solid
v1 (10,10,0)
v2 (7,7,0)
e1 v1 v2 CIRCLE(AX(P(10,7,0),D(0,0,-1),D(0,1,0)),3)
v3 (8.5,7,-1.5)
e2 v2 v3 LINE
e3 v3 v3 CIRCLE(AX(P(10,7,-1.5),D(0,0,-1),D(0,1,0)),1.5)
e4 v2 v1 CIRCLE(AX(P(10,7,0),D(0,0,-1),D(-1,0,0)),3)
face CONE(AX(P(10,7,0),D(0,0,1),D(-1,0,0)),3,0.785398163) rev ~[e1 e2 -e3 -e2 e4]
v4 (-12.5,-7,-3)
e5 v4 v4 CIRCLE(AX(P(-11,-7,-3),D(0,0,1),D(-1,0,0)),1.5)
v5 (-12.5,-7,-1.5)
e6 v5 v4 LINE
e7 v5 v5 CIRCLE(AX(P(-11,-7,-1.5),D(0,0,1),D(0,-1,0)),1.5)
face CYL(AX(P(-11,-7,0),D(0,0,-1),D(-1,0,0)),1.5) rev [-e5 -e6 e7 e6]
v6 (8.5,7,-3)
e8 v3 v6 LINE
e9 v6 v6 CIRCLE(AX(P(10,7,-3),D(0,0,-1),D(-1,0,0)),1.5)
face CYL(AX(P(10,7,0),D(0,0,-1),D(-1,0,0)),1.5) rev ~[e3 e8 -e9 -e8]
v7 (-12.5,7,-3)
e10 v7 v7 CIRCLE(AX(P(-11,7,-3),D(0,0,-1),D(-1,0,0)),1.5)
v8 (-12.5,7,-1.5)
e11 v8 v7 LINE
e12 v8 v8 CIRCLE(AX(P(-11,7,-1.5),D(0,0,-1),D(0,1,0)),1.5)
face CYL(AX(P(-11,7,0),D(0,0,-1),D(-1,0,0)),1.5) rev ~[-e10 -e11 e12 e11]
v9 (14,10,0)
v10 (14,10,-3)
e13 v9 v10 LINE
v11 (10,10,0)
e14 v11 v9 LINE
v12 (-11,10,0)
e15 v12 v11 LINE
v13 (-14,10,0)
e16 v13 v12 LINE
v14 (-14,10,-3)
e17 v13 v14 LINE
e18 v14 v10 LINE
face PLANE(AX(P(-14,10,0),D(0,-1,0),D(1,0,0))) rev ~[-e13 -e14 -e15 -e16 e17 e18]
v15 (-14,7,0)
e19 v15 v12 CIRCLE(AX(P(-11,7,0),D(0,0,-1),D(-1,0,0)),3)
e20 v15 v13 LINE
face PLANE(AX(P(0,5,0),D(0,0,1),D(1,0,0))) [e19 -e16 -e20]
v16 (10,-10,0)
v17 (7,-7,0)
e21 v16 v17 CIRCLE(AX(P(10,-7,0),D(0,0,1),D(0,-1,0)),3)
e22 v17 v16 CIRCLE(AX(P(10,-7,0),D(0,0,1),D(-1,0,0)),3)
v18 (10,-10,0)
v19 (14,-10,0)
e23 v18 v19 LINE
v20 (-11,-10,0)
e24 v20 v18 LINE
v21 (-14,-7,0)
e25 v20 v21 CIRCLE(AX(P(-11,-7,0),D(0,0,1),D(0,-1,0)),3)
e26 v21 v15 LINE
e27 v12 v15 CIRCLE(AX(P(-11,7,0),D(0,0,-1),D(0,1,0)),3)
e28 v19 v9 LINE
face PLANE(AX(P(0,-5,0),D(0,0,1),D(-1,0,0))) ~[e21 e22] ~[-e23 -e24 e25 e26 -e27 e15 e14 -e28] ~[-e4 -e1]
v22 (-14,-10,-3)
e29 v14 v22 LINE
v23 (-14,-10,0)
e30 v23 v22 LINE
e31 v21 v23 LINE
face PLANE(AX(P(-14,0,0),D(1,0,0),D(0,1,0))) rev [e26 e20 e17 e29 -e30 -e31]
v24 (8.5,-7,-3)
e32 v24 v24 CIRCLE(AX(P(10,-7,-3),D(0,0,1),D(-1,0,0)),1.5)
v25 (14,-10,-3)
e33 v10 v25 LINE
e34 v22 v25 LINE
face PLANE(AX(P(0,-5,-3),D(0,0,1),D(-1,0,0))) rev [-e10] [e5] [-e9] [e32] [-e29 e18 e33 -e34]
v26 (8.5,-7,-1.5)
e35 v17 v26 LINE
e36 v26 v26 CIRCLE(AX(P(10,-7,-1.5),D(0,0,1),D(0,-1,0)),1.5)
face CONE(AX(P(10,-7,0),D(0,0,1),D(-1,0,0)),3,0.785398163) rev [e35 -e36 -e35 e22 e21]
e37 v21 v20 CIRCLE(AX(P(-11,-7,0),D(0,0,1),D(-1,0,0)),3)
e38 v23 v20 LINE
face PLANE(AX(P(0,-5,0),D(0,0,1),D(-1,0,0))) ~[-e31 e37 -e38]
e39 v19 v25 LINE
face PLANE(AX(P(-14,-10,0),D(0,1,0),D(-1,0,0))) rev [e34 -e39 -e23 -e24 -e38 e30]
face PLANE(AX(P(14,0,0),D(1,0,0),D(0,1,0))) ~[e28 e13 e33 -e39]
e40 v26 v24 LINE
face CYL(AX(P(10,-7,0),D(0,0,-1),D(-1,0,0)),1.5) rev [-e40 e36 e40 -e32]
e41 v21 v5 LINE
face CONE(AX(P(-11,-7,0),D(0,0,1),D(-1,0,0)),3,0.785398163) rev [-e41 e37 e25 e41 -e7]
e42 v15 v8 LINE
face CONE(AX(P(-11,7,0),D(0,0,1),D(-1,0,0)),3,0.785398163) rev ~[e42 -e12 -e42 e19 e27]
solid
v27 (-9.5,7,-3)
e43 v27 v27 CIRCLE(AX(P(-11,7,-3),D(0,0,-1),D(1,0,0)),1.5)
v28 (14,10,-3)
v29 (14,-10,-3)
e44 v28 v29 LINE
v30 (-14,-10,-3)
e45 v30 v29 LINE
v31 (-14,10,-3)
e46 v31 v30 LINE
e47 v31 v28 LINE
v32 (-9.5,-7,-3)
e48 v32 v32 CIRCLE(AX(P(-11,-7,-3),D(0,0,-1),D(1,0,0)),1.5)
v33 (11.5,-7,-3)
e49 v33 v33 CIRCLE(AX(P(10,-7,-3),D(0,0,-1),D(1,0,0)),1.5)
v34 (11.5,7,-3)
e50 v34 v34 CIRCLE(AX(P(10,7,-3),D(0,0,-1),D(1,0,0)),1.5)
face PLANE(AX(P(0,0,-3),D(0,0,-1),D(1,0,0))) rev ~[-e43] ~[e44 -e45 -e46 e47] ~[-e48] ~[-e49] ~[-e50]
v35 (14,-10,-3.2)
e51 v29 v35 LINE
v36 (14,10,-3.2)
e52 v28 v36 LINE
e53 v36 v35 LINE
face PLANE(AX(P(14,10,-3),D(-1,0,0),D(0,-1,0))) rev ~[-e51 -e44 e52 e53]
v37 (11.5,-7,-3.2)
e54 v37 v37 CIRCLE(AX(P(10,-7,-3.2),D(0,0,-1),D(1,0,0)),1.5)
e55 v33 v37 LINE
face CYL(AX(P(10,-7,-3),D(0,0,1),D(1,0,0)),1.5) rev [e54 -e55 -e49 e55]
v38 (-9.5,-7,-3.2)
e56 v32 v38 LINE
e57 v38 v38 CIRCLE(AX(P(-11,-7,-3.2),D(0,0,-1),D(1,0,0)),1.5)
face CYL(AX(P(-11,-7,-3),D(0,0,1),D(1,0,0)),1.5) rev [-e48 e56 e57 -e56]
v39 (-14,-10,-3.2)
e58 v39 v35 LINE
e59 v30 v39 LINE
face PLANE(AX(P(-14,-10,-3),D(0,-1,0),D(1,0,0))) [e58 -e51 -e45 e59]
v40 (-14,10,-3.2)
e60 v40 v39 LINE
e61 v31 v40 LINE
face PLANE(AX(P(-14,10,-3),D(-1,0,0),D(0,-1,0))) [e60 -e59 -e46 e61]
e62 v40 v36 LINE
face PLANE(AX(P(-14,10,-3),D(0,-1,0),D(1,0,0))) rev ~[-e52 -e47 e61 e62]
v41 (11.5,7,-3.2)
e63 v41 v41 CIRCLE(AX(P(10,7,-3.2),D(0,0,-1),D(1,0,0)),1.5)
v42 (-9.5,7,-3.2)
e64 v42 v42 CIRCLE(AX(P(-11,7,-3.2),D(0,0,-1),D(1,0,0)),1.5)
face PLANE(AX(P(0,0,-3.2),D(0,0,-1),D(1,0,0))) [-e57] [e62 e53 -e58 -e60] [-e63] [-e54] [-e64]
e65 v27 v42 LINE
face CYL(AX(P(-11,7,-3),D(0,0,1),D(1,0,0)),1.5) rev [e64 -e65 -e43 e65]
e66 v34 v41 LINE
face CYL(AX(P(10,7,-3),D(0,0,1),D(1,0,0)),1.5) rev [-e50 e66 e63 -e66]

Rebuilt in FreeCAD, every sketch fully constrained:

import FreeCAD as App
import Part
import Sketcher
from FreeCAD import Vector

doc = App.newDocument("Part")
body = doc.addObject("PartDesign::Body", "Body")

# Sketch on XY plane
sketch1 = doc.addObject("Sketcher::SketchObject", "Sketch")
body.addObject(sketch1)
sketch1.AttachmentSupport = (doc.XY_Plane, [""])
sketch1.MapMode = "FlatFace"
sketch1.addGeometry([
    Part.LineSegment(Vector(-14, 10, 0), Vector(-14, 0, 0)),
    Part.LineSegment(Vector(-14, 0, 0), Vector(14, 0, 0)),
    Part.LineSegment(Vector(14, 0, 0), Vector(14, 10, 0)),
    Part.LineSegment(Vector(14, 10, 0), Vector(-14, 10, 0)),
], False)
sketch1.addConstraint([
    Sketcher.Constraint("Coincident", 0, 2, 1, 1),
    Sketcher.Constraint("Coincident", 1, 2, 2, 1),
    Sketcher.Constraint("Coincident", 2, 2, 3, 1),
    Sketcher.Constraint("Coincident", 3, 2, 0, 1),
    Sketcher.Constraint("Vertical", 0),
    Sketcher.Constraint("Horizontal", 1),
    Sketcher.Constraint("Vertical", 2),
    Sketcher.Constraint("Horizontal", 3),
    Sketcher.Constraint("Symmetric", 0, 2, 1, 2, -1, 1),
    Sketcher.Constraint("DistanceX", 1, 1, 1, 2, 28.0),
    Sketcher.Constraint("DistanceY", 0, 2, 0, 1, 10.0),
])
pad1 = doc.addObject("PartDesign::Pad", "Pad")
body.addObject(pad1)
pad1.Profile = sketch1
pad1.Length = 3
pad1.Reversed = True

# Sketch on XY plane
sketch2 = doc.addObject("Sketcher::SketchObject", "Sketch001")
body.addObject(sketch2)
sketch2.AttachmentSupport = (doc.XY_Plane, [""])
sketch2.MapMode = "FlatFace"
sketch2.addGeometry([
    Part.Circle(Vector(-11, 7, 0), Vector(0, 0, 1), 1.5),
    Part.Circle(Vector(10, 7, 0), Vector(0, 0, 1), 1.5),
], False)
sketch2.addConstraint([
    Sketcher.Constraint("Equal", 0, 1),
    Sketcher.Constraint("Horizontal", 0, 3, 1, 3),
    Sketcher.Constraint("Diameter", 0, 3.0),
    Sketcher.Constraint("DistanceX", 0, 3, -1, 1, 11.0),
    Sketcher.Constraint("DistanceY", -1, 1, 0, 3, 7.0),
    Sketcher.Constraint("DistanceX", -1, 1, 1, 3, 10.0),
])
doc.recompute()
hole = doc.addObject("PartDesign::Hole", "Hole")
body.addObject(hole)
hole.Profile = sketch2
hole.ThreadType = "None"
hole.Diameter = 3
hole.DepthType = "Dimension"
hole.Depth = 3
hole.DrillPoint = "Flat"
hole.HoleCutType = "Countersink"
hole.HoleCutDiameter = 6
hole.HoleCutCountersinkAngle = 90
body2 = doc.addObject("PartDesign::Body", "Body001")
doc.recompute()

body2.BaseFeature = body
doc.recompute()

mirroring = doc.addObject("Part::Mirroring", "Mirroring")
mirroring.Source = body
mirroring.Base = Vector(0, 0, 0)
mirroring.Normal = Vector(0, -1, 0)
body3 = doc.addObject("PartDesign::Body", "Body002")
body3.BaseFeature = mirroring
boolean = doc.addObject("PartDesign::Boolean", "Boolean")
body2.addObject(boolean)
boolean.Type = "Fuse"
boolean.addObjects([body3])
doc.recompute()
body4 = doc.addObject("PartDesign::Body", "Body003")

# Sketch on XY plane
sketch3 = doc.addObject("Sketcher::SketchObject", "Sketch002")
body4.addObject(sketch3)
sketch3.AttachmentSupport = (doc.getObject("XY_Plane003"), [""])
sketch3.MapMode = "FlatFace"
sketch3.AttachmentOffset = App.Placement(Vector(0, 0, -3), App.Rotation())
sketch3.addGeometry([
    Part.LineSegment(Vector(-14, -10, 0), Vector(-14, 10, 0)),  # 0
    Part.LineSegment(Vector(-14, 10, 0), Vector(14, 10, 0)),  # 1
    Part.LineSegment(Vector(14, 10, 0), Vector(14, -10, 0)),  # 2
    Part.LineSegment(Vector(14, -10, 0), Vector(-14, -10, 0)),  # 3
    Part.Circle(Vector(-11, 7, 0), Vector(0, 0, 1), 1.5),  # 4
    Part.Circle(Vector(10, 7, 0), Vector(0, 0, 1), 1.5),  # 5
    Part.Circle(Vector(-11, -7, 0), Vector(0, 0, 1), 1.5),  # 6
    Part.Circle(Vector(10, -7, 0), Vector(0, 0, 1), 1.5),  # 7
], False)
sketch3.addConstraint([
    Sketcher.Constraint("Coincident", 0, 2, 1, 1),
    Sketcher.Constraint("Coincident", 1, 2, 2, 1),
    Sketcher.Constraint("Coincident", 2, 2, 3, 1),
    Sketcher.Constraint("Coincident", 3, 2, 0, 1),
    Sketcher.Constraint("Vertical", 0),
    Sketcher.Constraint("Horizontal", 1),
    Sketcher.Constraint("Vertical", 2),
    Sketcher.Constraint("Horizontal", 3),
    Sketcher.Constraint("Equal", 4, 5),
    Sketcher.Constraint("Equal", 5, 6),
    Sketcher.Constraint("Equal", 6, 7),
    Sketcher.Constraint("Symmetric", 0, 2, 2, 2, -1, 1),
    Sketcher.Constraint("Symmetric", 4, 3, 6, 3, -1),
    Sketcher.Constraint("Symmetric", 5, 3, 7, 3, -1),
    Sketcher.Constraint("Horizontal", 4, 3, 5, 3),
    Sketcher.Constraint("Diameter", 4, 3.0),
    Sketcher.Constraint("DistanceX", 1, 1, 1, 2, 28.0),
    Sketcher.Constraint("DistanceY", 0, 1, 0, 2, 20.0),
    Sketcher.Constraint("DistanceX", 4, 3, -1, 1, 11.0),
    Sketcher.Constraint("DistanceY", -1, 1, 4, 3, 7.0),
    Sketcher.Constraint("DistanceX", -1, 1, 5, 3, 10.0),
])
pad2 = doc.addObject("PartDesign::Pad", "Pad001")
body4.addObject(pad2)
pad2.Profile = sketch3
pad2.Length = 0.2
pad2.Reversed = True
mirroring.Visibility = False

doc.recompute()
